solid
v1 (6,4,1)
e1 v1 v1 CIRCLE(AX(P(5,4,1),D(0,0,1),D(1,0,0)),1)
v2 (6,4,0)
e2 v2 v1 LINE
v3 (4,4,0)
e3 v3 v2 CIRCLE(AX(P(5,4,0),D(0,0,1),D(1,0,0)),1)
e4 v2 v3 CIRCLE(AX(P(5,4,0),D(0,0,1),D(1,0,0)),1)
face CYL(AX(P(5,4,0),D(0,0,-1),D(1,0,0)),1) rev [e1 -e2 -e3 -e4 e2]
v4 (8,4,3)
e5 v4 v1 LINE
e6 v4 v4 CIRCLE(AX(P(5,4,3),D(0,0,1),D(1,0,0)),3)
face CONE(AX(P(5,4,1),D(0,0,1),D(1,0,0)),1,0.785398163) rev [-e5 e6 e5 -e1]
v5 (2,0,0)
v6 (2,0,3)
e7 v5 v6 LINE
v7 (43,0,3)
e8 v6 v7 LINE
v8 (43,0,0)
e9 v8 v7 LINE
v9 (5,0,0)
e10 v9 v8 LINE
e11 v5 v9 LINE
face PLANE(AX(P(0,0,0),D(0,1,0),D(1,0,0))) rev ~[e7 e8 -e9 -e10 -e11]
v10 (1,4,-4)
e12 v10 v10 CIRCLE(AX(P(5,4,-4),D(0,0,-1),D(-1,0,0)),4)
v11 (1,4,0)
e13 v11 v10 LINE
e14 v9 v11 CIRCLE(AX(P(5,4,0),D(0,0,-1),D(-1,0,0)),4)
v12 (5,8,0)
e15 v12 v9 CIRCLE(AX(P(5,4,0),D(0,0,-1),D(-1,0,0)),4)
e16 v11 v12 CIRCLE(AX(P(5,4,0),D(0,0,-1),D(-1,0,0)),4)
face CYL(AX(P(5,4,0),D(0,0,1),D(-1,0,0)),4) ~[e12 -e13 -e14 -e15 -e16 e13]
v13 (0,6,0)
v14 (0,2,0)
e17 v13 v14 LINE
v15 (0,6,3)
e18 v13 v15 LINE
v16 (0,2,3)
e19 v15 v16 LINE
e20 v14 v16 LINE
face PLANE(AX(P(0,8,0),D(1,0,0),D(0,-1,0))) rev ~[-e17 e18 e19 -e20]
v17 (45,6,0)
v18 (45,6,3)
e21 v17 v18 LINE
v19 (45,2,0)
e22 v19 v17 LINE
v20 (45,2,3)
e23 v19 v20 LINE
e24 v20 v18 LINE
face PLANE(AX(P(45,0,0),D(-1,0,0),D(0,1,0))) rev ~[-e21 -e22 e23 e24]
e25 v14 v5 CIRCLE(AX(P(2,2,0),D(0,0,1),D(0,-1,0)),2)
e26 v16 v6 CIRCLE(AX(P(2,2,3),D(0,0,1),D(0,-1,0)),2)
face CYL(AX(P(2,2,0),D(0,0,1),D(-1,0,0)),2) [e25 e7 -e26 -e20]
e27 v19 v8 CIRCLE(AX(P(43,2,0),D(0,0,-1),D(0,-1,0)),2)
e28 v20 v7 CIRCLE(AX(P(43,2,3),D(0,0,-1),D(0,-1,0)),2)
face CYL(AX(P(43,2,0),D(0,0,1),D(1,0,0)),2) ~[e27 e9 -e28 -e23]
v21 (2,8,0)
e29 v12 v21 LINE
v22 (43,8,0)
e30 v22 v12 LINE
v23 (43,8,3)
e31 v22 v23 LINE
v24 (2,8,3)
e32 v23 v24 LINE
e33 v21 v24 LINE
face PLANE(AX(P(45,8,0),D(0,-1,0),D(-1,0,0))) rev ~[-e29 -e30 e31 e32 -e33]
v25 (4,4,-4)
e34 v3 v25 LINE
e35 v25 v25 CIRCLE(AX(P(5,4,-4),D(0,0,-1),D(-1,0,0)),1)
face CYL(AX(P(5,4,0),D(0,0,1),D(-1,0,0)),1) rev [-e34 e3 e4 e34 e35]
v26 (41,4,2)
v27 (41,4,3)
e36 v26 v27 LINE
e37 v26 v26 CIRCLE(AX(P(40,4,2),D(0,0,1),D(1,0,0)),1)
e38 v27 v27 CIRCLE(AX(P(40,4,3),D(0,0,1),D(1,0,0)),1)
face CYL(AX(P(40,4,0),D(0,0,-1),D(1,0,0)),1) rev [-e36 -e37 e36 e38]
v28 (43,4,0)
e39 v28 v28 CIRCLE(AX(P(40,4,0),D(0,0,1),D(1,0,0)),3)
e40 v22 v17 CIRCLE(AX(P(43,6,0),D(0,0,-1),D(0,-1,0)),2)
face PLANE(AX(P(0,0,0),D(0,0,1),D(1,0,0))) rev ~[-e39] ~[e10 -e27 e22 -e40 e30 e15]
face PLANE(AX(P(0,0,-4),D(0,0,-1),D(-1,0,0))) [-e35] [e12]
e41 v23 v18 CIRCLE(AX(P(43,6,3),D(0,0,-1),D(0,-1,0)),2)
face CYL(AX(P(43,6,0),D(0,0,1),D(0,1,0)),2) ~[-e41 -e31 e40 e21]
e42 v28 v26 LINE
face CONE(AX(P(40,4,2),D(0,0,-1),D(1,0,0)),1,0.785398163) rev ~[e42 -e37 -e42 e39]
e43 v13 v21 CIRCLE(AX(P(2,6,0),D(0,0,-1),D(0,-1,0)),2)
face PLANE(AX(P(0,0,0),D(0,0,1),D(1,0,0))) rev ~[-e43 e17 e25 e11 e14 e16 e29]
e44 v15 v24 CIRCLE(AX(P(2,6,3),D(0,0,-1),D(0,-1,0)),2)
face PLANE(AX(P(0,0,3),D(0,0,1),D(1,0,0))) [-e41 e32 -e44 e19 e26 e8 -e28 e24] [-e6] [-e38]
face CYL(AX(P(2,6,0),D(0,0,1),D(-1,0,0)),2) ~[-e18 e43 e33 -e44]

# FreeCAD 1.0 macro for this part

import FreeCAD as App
import Part
import Sketcher
Q = App.Units.Quantity


def edges_at(feature, points):
    """Names of the edges that pass closest to the given points."""
    edges = feature.Shape.Edges
    near = lambda p: min(range(len(edges)), key=lambda i: edges[i].distToShape(Part.Vertex(*p))[0])
    return sorted({f"Edge{near(p) + 1}" for p in points})


def add_polygon(sketch, points):
    """Adds a closed chain of lines whose ends are joined by coincident constraints."""
    first, n = sketch.GeometryCount, len(points)
    for a, b in zip(points, points[1:] + points[:1]):
        sketch.addGeometry(Part.LineSegment(App.Vector(*a, 0), App.Vector(*b, 0)), False)
    for i in range(n):
        sketch.addConstraint(Sketcher.Constraint("Coincident", first + i, 2, first + (i + 1) % n, 1))

doc = App.newDocument("Part")
body = doc.addObject("PartDesign::Body", "Body")

sketch1 = body.newObject("Sketcher::SketchObject", "Sketch")
sketch1.AttachmentSupport = (doc.getObject("XY_Plane"), [""])
sketch1.MapMode = "FlatFace"
add_polygon(sketch1, [(0, 8), (0, 0), (45, 0), (45, 8)])
sketch1.addGeometry(Part.Circle(App.Vector(5, 4, 0), App.Vector(0, 0, 1), 1), False)
sketch1.addGeometry(Part.Circle(App.Vector(40, 4, 0), App.Vector(0, 0, 1), 1), False)
sketch1.addConstraint([
    Sketcher.Constraint("Vertical", 0),
    Sketcher.Constraint("Horizontal", 1),
    Sketcher.Constraint("Vertical", 2),
    Sketcher.Constraint("Horizontal", 3),
    Sketcher.Constraint("Coincident", 0, 2, -1, 1),
    Sketcher.Constraint("Equal", 4, 5),
    Sketcher.Constraint("Horizontal", 4, 3, 5, 3),
    Sketcher.Constraint("Diameter", 4, Q("2 mm")),
    Sketcher.Constraint("DistanceX", 1, 1, 1, 2, Q("45 mm")),
    Sketcher.Constraint("DistanceY", 0, 2, 0, 1, Q("8 mm")),
    Sketcher.Constraint("DistanceX", -1, 1, 4, 3, Q("5 mm")),
    Sketcher.Constraint("DistanceX", 5, 3, 1, 2, Q("5 mm")),
    Sketcher.Constraint("DistanceY", -1, 1, 4, 3, Q("4 mm")),
])
pad1 = body.newObject("PartDesign::Pad", "Pad")
pad1.Profile = sketch1
pad1.Length = 3
doc.recompute()

fillet = body.newObject("PartDesign::Fillet", "Fillet")
fillet.Base = (pad1, edges_at(pad1, [
    (0, 8, 1.5),
    (45, 8, 1.5),
    (45, 0, 1.5),
    (0, 0, 1.5),
]))
fillet.Radius = 2
doc.recompute()

chamfer = body.newObject("PartDesign::Chamfer", "Chamfer")
chamfer.Base = (fillet, edges_at(fillet, [(4, 4, 3), (39, 4, 0)]))
chamfer.Size = 2

sketch2 = body.newObject("Sketcher::SketchObject", "Sketch001")
sketch2.AttachmentSupport = (doc.getObject("XY_Plane"), [""])
sketch2.MapMode = "FlatFace"
sketch2.addGeometry([
    Part.Circle(App.Vector(5, 4, 0), App.Vector(0, 0, 1), 4),
    Part.Circle(App.Vector(5, 4, 0), App.Vector(0, 0, 1), 1),
], False)
sketch2.addConstraint([
    Sketcher.Constraint("Coincident", 1, 3, 0, 3),
    Sketcher.Constraint("Diameter", 0, Q("8 mm")),
    Sketcher.Constraint("Diameter", 1, Q("2 mm")),
    Sketcher.Constraint("DistanceX", -1, 1, 0, 3, Q("5 mm")),
    Sketcher.Constraint("DistanceY", -1, 1, 0, 3, Q("4 mm")),
])
pad2 = body.newObject("PartDesign::Pad", "Pad001")
pad2.Profile = sketch2
pad2.Length = 4
pad2.Reversed = True

doc.recompute()
